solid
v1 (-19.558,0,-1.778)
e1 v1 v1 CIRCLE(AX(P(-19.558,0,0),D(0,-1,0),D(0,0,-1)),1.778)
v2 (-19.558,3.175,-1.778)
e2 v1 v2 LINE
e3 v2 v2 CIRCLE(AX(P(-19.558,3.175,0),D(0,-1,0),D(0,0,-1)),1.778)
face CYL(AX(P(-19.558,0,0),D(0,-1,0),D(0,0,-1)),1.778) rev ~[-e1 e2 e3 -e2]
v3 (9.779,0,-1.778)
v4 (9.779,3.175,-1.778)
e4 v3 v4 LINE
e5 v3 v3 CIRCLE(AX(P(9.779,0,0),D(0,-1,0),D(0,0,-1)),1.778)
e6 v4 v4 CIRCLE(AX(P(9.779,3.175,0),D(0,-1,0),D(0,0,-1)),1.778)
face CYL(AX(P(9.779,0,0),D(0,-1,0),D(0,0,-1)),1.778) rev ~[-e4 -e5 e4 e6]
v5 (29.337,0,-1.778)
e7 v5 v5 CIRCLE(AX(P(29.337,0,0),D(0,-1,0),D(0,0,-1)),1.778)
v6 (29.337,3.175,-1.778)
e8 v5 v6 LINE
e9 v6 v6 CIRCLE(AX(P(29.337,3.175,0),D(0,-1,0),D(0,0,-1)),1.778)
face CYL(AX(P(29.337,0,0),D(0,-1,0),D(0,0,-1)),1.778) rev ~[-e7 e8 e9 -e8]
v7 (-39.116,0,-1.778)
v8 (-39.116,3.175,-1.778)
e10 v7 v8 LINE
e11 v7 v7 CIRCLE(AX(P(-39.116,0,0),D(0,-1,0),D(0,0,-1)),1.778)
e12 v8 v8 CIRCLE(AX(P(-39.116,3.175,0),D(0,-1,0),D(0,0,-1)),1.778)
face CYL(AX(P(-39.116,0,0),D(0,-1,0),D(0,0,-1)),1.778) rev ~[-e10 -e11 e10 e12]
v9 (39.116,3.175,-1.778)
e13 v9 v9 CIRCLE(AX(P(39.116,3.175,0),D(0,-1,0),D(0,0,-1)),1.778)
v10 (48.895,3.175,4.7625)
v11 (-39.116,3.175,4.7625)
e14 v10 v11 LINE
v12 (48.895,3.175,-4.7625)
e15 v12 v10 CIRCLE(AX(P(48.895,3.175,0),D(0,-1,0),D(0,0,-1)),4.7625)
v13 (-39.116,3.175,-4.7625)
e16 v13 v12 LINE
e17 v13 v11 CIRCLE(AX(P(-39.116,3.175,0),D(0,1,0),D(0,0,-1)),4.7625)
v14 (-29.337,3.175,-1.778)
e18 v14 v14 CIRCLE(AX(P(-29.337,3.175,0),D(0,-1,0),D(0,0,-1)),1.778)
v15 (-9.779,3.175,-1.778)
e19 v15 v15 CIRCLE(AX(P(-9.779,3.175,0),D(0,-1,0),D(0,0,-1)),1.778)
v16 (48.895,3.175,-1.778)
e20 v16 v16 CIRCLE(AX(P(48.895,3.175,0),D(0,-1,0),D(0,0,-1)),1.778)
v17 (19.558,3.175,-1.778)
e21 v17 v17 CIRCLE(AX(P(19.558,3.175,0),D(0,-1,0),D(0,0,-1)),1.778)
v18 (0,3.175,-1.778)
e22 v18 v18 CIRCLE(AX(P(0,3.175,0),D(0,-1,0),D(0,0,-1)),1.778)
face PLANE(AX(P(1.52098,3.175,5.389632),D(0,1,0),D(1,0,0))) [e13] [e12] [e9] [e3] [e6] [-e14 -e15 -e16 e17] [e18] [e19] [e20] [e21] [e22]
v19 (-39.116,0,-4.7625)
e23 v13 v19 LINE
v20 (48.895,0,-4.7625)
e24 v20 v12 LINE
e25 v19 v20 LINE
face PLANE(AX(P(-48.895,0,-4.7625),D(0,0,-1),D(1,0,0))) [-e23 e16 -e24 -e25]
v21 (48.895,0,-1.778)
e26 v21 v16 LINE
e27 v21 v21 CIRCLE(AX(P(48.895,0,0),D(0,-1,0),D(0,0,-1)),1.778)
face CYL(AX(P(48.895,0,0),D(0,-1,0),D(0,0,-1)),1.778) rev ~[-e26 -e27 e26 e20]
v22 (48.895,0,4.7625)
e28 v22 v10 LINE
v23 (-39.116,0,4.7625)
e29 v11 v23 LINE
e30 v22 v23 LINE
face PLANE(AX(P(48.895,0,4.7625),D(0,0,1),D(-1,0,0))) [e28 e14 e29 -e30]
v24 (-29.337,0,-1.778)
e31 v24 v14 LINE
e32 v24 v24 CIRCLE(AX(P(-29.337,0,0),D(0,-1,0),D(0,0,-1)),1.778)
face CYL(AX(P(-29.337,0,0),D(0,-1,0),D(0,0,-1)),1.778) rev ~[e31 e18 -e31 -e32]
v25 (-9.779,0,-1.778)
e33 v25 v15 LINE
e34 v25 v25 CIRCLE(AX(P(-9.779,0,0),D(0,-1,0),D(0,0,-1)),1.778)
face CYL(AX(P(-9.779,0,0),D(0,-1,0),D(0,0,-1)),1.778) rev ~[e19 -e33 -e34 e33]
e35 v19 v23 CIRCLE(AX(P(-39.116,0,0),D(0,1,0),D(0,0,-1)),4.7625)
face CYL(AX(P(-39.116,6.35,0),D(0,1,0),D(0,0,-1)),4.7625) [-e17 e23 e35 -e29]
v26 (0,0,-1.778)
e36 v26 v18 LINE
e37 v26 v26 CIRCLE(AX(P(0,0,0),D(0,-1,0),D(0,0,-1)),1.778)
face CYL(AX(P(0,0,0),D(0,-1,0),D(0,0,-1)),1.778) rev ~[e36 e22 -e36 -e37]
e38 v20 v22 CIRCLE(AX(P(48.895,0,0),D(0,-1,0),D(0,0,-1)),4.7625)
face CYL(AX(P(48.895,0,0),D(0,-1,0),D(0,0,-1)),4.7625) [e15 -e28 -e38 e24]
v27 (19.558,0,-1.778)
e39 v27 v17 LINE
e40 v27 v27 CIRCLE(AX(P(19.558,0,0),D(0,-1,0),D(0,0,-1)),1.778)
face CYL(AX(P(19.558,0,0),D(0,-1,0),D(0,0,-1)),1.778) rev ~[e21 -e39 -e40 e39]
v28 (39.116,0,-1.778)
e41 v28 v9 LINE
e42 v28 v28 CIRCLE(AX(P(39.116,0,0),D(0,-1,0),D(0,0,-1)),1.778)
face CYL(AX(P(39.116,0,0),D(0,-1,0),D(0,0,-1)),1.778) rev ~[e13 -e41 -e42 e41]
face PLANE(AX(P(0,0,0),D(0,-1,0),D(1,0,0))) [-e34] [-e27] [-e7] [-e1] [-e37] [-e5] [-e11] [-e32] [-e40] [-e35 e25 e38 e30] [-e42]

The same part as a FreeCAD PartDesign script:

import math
import FreeCAD as App
import Part
import Sketcher
Q = App.Units.Quantity

doc = App.newDocument("Part")
body = doc.addObject("PartDesign::Body", "Body")

# Sketch on XZ plane
sketch1 = body.newObject("Sketcher::SketchObject", "Sketch")
sketch1.AttachmentSupport = (doc.getObject("XZ_Plane"), [""])
sketch1.MapMode = "FlatFace"
sketch1.addGeometry(Part.LineSegment(App.Vector(-48.9, -4.8, 0), App.Vector(48.9, -4.8, 0)), False)
sketch1.addGeometry(Part.ArcOfCircle(Part.Circle(App.Vector(48.9, 0, 0), App.Vector(0, 0, 1), 4.8), math.radians(-90), math.radians(90)), False)
sketch1.addGeometry(Part.LineSegment(App.Vector(48.9, 4.8, 0), App.Vector(-48.9, 4.8, 0)), False)
sketch1.addGeometry(Part.ArcOfCircle(Part.Circle(App.Vector(-48.9, 0, 0), App.Vector(0, 0, 1), 4.8), math.radians(90), math.radians(270)), False)
sketch1.addGeometry(Part.Circle(App.Vector(-48.9, 0, 0), App.Vector(0, 0, 1), 1.8), False)
sketch1.addGeometry(Part.Circle(App.Vector(-39.1, 0, 0), App.Vector(0, 0, 1), 1.8), False)
sketch1.addGeometry(Part.Circle(App.Vector(-29.3, 0, 0), App.Vector(0, 0, 1), 1.8), False)
sketch1.addGeometry(Part.Circle(App.Vector(-19.6, 0, 0), App.Vector(0, 0, 1), 1.8), False)
sketch1.addGeometry(Part.Circle(App.Vector(-9.8, 0, 0), App.Vector(0, 0, 1), 1.8), False)
sketch1.addGeometry(Part.Circle(App.Vector(0, 0, 0), App.Vector(0, 0, 1), 1.8), False)
sketch1.addGeometry(Part.Circle(App.Vector(9.8, 0, 0), App.Vector(0, 0, 1), 1.8), False)
sketch1.addGeometry(Part.Circle(App.Vector(19.6, 0, 0), App.Vector(0, 0, 1), 1.8), False)
sketch1.addGeometry(Part.Circle(App.Vector(29.3, 0, 0), App.Vector(0, 0, 1), 1.8), False)
sketch1.addGeometry(Part.Circle(App.Vector(39.1, 0, 0), App.Vector(0, 0, 1), 1.8), False)
sketch1.addGeometry(Part.Circle(App.Vector(48.9, 0, 0), App.Vector(0, 0, 1), 1.8), False)
sketch1.addConstraint(Sketcher.Constraint("Tangent", 0, 2, 1, 1))
sketch1.addConstraint(Sketcher.Constraint("Tangent", 1, 2, 2, 1))
sketch1.addConstraint(Sketcher.Constraint("Tangent", 2, 2, 3, 1))
sketch1.addConstraint(Sketcher.Constraint("Tangent", 3, 2, 0, 1))
sketch1.addConstraint(Sketcher.Constraint("Horizontal", 0))
sketch1.addConstraint(Sketcher.Constraint("Horizontal", 2))
sketch1.addConstraint(Sketcher.Constraint("Coincident", 9, 3, -1, 1))
sketch1.addConstraint(Sketcher.Constraint("Coincident", 4, 3, 3, 3))
sketch1.addConstraint(Sketcher.Constraint("Coincident", 14, 3, 1, 3))
sketch1.addConstraint(Sketcher.Constraint("Equal", 4, 5))
sketch1.addConstraint(Sketcher.Constraint("Equal", 5, 6))
sketch1.addConstraint(Sketcher.Constraint("Equal", 6, 7))
sketch1.addConstraint(Sketcher.Constraint("Equal", 7, 8))
sketch1.addConstraint(Sketcher.Constraint("Equal", 8, 9))
sketch1.addConstraint(Sketcher.Constraint("Equal", 9, 10))
sketch1.addConstraint(Sketcher.Constraint("Equal", 10, 11))
sketch1.addConstraint(Sketcher.Constraint("Equal", 11, 12))
sketch1.addConstraint(Sketcher.Constraint("Equal", 12, 13))
sketch1.addConstraint(Sketcher.Constraint("Equal", 13, 14))
sketch1.addConstraint(Sketcher.Constraint("Symmetric", 1, 3, 3, 3, -1, 1))
sketch1.addConstraint(Sketcher.Constraint("Symmetric", 8, 3, 10, 3, -1, 1))
sketch1.addConstraint(Sketcher.Constraint("Symmetric", 7, 3, 11, 3, -1, 1))
sketch1.addConstraint(Sketcher.Constraint("Symmetric", 6, 3, 12, 3, -1, 1))
sketch1.addConstraint(Sketcher.Constraint("Symmetric", 5, 3, 13, 3, -1, 1))
sketch1.addConstraint(Sketcher.Constraint("PointOnObject", 5, 3, -1))
sketch1.addConstraint(Sketcher.Constraint("PointOnObject", 6, 3, -1))
sketch1.addConstraint(Sketcher.Constraint("PointOnObject", 7, 3, -1))
sketch1.addConstraint(Sketcher.Constraint("PointOnObject", 8, 3, -1))
sketch1.addConstraint(Sketcher.Constraint("Diameter", 4, Q("0.14 in")))
sketch1.addConstraint(Sketcher.Constraint("Radius", 1, Q("0.1875 in")))
sketch1.addConstraint(Sketcher.Constraint("DistanceX", 0, 1, 0, 2, Q("3.85 in")))
sketch1.addConstraint(Sketcher.Constraint("DistanceX", 5, 3, -1, 1, Q("1.54 in")))
sketch1.addConstraint(Sketcher.Constraint("DistanceX", 7, 3, -1, 1, Q("0.77 in")))
sketch1.addConstraint(Sketcher.Constraint("DistanceX", 3, 3, 6, 3, Q("0.77 in")))
sketch1.addConstraint(Sketcher.Constraint("DistanceX", 6, 3, 8, 3, Q("0.77 in")))
pad1 = body.newObject("PartDesign::Pad", "Pad")
pad1.Profile = sketch1
pad1.Length = Q("0.25 in")
pad1.Reversed = True

# Sketch on XZ plane
sketch2 = body.newObject("Sketcher::SketchObject", "Sketch001")
sketch2.AttachmentSupport = (doc.getObject("XZ_Plane"), [""])
sketch2.MapMode = "FlatFace"
sketch2.AttachmentOffset = App.Placement(App.Vector(0, 0, -0.25 * 25.4), App.Rotation())
sketch2.addGeometry(Part.LineSegment(App.Vector(-55.6, 6.9, 0), App.Vector(-39.1, 4.8, 0)), False)
sketch2.addGeometry(Part.ArcOfCircle(Part.Circle(App.Vector(-39.1, 0, 0), App.Vector(0, 0, 1), 4.8), math.radians(90), math.radians(270)), False)
sketch2.addGeometry(Part.LineSegment(App.Vector(-39.1, -4.8, 0), App.Vector(-55.6, -9, 0)), False)
sketch2.addGeometry(Part.LineSegment(App.Vector(-55.6, -9, 0), App.Vector(-55.6, 6.9, 0)), False)
sketch2.addConstraint(Sketcher.Constraint("Coincident", 0, 2, 1, 1))
sketch2.addConstraint(Sketcher.Constraint("Coincident", 1, 2, 2, 1))
sketch2.addConstraint(Sketcher.Constraint("Coincident", 2, 2, 3, 1))
sketch2.addConstraint(Sketcher.Constraint("Coincident", 3, 2, 0, 1))
sketch2.addConstraint(Sketcher.Constraint("Vertical", 3))
sketch2.addConstraint(Sketcher.Constraint("Symmetric", 0, 2, 1, 2, -1))
sketch2.addConstraint(Sketcher.Constraint("Vertical", 1, 3, 0, 2))
sketch2.addConstraint(Sketcher.Constraint("Radius", 1, Q("0.1875 in")))
sketch2.addConstraint(Sketcher.Constraint("DistanceX", 1, 3, -1, 1, Q("1.54 in")))
sketch2.addConstraint(Sketcher.Constraint("Distance", 2, Q("17.034119 mm")))
sketch2.addConstraint(Sketcher.Constraint("DistanceY", 3, 1, 3, 2, Q("15.939566 mm")))
sketch2.addConstraint(Sketcher.Constraint("DistanceX", 2, 2, -1, 1, Q("55.615089 mm")))
pocket1 = body.newObject("PartDesign::Pocket", "Pocket")
pocket1.Profile = sketch2
pocket1.Type = "ThroughAll"
pocket1.Reversed = True

# Sketch on XZ plane
sketch3 = body.newObject("Sketcher::SketchObject", "Sketch002")
sketch3.AttachmentSupport = (doc.getObject("XZ_Plane"), [""])
sketch3.MapMode = "FlatFace"
sketch3.AttachmentOffset = App.Placement(App.Vector(0, 0, -0.25 * 25.4), App.Rotation())
sketch3.addGeometry(Part.LineSegment(App.Vector(-60, -23, 0), App.Vector(-60, 34, 0)), False)
sketch3.addGeometry(Part.LineSegment(App.Vector(-60, 34, 0), App.Vector(64, 34, 0)), False)
sketch3.addGeometry(Part.LineSegment(App.Vector(64, 34, 0), App.Vector(64, -23, 0)), False)
sketch3.addGeometry(Part.LineSegment(App.Vector(64, -23, 0), App.Vector(-60, -23, 0)), False)
sketch3.addConstraint(Sketcher.Constraint("Coincident", 0, 2, 1, 1))
sketch3.addConstraint(Sketcher.Constraint("Coincident", 1, 2, 2, 1))
sketch3.addConstraint(Sketcher.Constraint("Coincident", 2, 2, 3, 1))
sketch3.addConstraint(Sketcher.Constraint("Coincident", 3, 2, 0, 1))
sketch3.addConstraint(Sketcher.Constraint("Vertical", 0))
sketch3.addConstraint(Sketcher.Constraint("Horizontal", 1))
sketch3.addConstraint(Sketcher.Constraint("Vertical", 2))
sketch3.addConstraint(Sketcher.Constraint("Horizontal", 3))
sketch3.addConstraint(Sketcher.Constraint("DistanceX", 1, 1, 1, 2, Q("123.961526 mm")))
sketch3.addConstraint(Sketcher.Constraint("DistanceY", 0, 1, 0, 2, Q("57.130095 mm")))
sketch3.addConstraint(Sketcher.Constraint("DistanceY", -1, 1, 0, 2, Q("33.954679 mm")))
sketch3.addConstraint(Sketcher.Constraint("DistanceX", 0, 2, -1, 1, Q("60.459783 mm")))
pocket2 = body.newObject("PartDesign::Pocket", "Pocket001")
pocket2.Profile = sketch3
pocket2.Length = Q("0.125 in")
pocket2.Reversed = True

doc.recompute()
